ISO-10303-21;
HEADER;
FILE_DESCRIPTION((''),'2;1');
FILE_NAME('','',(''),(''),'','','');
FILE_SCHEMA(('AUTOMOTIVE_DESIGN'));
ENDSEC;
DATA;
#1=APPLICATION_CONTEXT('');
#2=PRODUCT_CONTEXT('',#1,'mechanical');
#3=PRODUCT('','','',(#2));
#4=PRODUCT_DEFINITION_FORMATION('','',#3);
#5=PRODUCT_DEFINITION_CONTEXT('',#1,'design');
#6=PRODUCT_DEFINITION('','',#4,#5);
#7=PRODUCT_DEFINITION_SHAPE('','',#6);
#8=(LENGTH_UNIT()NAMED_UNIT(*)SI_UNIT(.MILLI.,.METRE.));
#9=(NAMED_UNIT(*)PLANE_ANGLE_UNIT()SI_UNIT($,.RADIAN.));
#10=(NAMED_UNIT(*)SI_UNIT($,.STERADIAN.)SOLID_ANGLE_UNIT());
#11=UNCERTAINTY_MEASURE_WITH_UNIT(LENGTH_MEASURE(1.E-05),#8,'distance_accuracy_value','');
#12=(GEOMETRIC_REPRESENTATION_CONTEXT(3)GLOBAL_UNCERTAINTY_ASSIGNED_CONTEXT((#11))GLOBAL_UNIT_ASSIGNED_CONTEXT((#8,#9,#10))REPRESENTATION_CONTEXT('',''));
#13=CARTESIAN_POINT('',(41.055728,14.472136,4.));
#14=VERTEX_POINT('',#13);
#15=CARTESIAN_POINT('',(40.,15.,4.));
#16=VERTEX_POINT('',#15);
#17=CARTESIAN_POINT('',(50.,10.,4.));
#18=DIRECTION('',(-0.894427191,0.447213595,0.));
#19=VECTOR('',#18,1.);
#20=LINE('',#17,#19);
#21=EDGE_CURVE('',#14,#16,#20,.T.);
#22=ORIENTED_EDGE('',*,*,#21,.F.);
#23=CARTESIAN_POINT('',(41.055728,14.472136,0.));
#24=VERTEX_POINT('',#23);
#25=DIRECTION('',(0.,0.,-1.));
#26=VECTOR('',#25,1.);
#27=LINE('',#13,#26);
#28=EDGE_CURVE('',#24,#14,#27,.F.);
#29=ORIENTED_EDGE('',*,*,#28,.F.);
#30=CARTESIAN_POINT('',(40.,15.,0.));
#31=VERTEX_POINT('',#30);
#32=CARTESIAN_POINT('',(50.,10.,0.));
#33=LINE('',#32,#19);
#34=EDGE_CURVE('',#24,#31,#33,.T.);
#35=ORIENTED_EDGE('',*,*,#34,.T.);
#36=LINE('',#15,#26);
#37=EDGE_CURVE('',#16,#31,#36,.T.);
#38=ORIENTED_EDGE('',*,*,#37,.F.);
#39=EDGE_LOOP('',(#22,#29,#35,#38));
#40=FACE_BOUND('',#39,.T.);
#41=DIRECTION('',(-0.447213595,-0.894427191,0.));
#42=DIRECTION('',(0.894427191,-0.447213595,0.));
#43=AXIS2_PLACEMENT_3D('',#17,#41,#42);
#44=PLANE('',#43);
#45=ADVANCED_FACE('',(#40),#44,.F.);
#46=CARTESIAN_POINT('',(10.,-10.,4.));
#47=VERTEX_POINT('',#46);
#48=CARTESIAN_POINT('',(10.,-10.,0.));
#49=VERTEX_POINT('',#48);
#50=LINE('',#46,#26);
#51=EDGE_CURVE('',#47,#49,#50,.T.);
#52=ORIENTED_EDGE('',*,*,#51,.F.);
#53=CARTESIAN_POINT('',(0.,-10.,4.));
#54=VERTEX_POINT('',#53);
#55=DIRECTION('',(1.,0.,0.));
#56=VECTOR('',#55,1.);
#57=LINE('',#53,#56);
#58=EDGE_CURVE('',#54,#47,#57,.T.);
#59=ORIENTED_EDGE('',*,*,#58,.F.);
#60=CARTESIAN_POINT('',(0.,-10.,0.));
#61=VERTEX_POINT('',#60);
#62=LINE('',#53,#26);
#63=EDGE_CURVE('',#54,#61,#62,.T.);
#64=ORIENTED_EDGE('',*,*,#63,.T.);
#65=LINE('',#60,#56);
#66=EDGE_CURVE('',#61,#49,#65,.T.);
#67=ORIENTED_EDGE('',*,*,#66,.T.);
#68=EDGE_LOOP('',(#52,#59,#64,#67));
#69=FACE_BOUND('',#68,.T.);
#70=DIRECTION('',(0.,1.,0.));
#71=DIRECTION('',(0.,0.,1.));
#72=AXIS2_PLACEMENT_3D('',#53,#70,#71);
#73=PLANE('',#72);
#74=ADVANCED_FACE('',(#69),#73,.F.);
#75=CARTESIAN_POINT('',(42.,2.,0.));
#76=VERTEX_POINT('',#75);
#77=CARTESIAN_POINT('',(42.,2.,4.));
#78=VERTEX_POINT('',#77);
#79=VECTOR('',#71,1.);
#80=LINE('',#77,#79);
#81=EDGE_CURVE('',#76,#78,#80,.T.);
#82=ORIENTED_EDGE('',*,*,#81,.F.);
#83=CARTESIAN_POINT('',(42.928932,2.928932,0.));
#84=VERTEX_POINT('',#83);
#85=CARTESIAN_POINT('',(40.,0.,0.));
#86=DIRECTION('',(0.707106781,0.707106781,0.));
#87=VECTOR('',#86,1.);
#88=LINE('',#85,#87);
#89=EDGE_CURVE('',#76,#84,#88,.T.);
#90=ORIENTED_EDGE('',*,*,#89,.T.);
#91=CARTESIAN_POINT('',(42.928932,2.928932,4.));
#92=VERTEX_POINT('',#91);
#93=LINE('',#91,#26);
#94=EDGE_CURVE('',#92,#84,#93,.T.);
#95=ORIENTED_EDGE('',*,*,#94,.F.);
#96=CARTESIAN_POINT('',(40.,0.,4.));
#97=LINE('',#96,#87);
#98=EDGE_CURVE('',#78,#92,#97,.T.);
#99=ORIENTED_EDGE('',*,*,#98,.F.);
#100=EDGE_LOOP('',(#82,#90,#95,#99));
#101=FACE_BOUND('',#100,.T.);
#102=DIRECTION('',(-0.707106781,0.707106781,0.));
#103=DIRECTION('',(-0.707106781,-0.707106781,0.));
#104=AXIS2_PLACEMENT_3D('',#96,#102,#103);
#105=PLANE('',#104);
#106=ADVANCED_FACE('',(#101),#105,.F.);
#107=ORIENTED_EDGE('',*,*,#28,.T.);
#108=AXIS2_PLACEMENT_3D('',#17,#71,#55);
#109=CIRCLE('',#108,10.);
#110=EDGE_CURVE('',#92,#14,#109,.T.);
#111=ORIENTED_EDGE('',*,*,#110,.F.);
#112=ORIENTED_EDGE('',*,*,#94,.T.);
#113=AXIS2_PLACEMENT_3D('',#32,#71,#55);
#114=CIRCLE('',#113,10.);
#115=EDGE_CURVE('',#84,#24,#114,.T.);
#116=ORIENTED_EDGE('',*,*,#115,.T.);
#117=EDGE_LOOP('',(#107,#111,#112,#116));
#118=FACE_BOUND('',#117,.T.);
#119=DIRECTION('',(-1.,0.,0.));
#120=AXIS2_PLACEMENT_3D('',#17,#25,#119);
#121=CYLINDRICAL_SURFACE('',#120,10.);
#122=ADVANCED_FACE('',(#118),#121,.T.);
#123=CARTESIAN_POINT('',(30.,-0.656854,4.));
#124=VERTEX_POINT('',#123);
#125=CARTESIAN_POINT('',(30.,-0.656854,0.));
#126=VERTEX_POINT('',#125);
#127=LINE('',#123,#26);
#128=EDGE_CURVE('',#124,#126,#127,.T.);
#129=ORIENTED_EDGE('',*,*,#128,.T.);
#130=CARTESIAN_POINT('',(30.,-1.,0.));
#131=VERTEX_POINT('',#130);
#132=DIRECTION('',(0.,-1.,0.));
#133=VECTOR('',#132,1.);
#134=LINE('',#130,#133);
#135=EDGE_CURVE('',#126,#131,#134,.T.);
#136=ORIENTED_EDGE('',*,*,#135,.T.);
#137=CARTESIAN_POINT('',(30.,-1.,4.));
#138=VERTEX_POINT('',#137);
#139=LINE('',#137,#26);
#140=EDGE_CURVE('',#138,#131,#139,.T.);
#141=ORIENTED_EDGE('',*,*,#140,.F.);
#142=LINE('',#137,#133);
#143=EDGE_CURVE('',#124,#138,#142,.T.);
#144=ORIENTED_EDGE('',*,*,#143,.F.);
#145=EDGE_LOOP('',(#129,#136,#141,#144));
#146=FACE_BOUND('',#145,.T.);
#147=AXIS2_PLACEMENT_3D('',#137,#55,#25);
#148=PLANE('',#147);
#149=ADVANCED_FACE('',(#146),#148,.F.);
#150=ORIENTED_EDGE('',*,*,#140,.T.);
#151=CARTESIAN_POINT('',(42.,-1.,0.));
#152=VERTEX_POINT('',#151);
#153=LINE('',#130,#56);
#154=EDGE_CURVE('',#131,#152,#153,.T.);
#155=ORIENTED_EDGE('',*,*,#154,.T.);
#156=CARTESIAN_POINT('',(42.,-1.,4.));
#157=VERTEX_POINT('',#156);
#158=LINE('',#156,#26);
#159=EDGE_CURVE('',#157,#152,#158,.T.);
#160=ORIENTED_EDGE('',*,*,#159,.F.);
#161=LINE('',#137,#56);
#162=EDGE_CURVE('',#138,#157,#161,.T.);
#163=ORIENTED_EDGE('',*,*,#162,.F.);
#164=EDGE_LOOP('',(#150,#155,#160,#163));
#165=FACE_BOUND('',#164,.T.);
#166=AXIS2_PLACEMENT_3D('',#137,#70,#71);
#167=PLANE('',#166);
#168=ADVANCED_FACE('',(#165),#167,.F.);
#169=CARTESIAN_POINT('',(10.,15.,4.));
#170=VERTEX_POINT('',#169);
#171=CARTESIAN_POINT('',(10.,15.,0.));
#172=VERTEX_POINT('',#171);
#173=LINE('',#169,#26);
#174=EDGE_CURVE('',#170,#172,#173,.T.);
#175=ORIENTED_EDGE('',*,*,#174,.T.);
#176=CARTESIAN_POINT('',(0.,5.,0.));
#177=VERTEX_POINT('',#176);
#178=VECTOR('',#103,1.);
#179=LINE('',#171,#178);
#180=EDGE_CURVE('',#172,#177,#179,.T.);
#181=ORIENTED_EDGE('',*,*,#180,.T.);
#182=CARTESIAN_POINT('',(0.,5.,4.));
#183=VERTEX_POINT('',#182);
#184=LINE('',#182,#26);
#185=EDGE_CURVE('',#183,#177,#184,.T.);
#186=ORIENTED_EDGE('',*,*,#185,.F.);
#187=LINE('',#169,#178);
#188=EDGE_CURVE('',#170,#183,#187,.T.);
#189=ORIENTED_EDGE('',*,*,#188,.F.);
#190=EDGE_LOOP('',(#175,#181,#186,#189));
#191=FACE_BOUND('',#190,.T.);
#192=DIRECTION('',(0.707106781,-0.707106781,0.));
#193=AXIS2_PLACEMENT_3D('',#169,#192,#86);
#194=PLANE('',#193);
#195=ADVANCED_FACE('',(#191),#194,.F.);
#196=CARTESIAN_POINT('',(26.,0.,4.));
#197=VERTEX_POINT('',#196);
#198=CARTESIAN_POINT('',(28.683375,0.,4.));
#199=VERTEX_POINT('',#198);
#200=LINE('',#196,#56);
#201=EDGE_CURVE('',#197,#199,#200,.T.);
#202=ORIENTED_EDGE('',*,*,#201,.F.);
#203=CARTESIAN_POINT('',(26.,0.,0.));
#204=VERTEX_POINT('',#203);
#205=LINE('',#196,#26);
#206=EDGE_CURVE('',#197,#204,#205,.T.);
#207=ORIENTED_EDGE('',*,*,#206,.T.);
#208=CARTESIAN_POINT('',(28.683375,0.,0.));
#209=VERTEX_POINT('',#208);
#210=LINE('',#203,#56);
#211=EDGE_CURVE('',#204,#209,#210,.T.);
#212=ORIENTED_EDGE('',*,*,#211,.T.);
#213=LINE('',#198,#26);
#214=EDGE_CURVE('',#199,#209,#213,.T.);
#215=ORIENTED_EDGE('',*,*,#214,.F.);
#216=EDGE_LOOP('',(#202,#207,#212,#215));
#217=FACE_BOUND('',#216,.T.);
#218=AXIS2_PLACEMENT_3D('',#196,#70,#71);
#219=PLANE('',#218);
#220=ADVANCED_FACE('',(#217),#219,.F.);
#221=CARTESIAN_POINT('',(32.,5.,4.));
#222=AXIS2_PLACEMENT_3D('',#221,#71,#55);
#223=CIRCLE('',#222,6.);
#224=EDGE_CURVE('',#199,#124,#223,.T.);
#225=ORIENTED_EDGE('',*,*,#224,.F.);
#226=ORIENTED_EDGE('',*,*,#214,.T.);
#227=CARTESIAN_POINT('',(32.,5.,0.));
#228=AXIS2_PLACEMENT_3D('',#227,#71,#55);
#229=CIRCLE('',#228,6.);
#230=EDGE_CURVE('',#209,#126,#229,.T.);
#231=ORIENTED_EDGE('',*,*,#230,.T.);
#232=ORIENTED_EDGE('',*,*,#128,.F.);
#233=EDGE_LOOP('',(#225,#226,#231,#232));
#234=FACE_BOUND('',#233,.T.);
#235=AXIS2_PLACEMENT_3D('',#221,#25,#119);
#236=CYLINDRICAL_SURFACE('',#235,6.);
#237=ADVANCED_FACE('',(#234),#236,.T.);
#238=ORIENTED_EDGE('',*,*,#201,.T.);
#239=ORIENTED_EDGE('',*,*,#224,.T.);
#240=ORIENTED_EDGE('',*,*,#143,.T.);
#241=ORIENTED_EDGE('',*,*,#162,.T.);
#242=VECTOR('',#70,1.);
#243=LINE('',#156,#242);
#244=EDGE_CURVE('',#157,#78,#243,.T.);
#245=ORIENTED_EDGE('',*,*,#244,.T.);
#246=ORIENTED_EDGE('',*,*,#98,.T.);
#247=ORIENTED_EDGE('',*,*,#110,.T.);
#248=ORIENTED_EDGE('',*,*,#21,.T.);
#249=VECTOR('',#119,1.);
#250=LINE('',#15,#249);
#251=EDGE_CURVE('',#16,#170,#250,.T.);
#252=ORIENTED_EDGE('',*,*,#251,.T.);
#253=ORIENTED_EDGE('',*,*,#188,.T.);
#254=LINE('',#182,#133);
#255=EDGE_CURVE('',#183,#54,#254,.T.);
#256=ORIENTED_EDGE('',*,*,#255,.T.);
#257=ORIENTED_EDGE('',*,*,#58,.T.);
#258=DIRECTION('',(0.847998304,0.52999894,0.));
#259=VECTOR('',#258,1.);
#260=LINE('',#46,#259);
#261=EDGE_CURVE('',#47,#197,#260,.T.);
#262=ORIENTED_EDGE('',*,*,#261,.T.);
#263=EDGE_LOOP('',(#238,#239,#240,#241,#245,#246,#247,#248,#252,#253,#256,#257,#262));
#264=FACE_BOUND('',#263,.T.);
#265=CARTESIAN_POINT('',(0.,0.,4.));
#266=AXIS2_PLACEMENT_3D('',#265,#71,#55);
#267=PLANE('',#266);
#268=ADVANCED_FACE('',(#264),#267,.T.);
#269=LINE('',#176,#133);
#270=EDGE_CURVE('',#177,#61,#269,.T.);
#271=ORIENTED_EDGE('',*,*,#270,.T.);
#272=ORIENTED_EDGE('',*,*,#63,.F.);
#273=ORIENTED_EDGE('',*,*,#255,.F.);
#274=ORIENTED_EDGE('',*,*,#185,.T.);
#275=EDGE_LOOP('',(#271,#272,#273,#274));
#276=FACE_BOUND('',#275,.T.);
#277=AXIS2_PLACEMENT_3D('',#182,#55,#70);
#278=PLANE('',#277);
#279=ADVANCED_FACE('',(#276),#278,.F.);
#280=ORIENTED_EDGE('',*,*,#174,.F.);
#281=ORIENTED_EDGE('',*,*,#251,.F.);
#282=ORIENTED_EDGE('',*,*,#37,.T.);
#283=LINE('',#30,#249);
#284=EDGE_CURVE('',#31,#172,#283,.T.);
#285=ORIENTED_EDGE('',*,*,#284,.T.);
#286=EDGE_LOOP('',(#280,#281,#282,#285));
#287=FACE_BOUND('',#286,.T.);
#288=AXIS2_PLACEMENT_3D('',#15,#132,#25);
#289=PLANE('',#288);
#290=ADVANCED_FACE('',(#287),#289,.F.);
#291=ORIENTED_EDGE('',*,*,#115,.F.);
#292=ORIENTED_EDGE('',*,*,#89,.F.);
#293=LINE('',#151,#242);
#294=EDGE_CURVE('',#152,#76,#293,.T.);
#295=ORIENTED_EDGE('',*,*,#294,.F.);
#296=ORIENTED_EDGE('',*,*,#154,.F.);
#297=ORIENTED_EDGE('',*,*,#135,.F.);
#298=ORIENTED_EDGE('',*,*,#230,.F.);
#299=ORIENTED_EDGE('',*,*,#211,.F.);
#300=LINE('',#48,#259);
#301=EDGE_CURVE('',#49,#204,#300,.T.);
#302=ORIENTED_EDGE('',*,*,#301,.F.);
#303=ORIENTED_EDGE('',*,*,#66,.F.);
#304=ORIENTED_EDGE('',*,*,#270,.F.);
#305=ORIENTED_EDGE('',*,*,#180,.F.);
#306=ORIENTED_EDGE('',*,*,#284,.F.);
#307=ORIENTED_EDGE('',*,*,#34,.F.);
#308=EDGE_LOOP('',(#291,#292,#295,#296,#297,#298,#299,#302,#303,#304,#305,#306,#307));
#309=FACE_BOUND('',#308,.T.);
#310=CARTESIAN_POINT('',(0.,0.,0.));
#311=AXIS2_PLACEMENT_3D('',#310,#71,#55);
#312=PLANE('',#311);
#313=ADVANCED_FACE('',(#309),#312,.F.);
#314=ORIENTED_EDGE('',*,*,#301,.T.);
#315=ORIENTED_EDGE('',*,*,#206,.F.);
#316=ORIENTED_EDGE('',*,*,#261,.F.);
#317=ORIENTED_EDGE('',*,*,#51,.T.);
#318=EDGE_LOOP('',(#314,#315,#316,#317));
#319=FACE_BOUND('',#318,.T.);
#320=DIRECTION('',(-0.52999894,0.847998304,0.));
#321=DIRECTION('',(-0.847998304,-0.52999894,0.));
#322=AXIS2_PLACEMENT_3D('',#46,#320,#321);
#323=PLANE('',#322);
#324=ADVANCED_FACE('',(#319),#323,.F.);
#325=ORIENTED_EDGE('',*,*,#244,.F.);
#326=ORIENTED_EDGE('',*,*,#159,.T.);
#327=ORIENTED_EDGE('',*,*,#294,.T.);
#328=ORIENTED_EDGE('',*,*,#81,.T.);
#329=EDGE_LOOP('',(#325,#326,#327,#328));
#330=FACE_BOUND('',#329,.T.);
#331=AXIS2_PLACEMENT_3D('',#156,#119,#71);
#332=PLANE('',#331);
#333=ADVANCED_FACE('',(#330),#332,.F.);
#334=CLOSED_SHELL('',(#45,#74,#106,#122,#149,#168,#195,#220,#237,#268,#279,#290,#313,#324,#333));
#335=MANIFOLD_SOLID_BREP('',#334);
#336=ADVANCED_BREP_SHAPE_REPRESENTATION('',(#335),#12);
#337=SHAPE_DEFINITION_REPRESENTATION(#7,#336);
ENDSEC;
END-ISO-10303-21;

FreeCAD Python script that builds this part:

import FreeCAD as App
import Part
import Sketcher
Q = App.Units.Quantity

doc = App.newDocument("Part")
params = doc.addObject("Spreadsheet::Sheet", "Params")
for row, (alias, value) in enumerate([
    ("sketch1_width", "10 mm"),
    ("sketch1_width2", "14 mm"),
    ("sketch1_width3", "30 mm"),
    ("sketch1_height", "15 mm"),
    ("pad1_length", "4 mm"),
    ("sketch2_diameter", "20 mm"),
    ("pad2_length", "4 mm"),
    ("sketch3_diameter", "12 mm"),
    ("pad3_length", "4 mm"),
    ("sketch4_width", "12 mm"),
    ("pad4_length", "4 mm"),
], start=1):
    params.set(f"A{row}", alias)
    params.set(f"B{row}", "=" + value)
    params.setAlias(f"B{row}", alias)

body = doc.addObject("PartDesign::Body", "Body")

# Sketch on XY plane
sketch1 = doc.addObject("Sketcher::SketchObject", "Sketch")
body.addObject(sketch1)
sketch1.AttachmentSupport = (doc.XY_Plane, [""])
sketch1.MapMode = "FlatFace"
sketch1.addGeometry(Part.LineSegment(App.Vector(0, -10, 0), App.Vector(10, -10, 0)), False)
sketch1.addGeometry(Part.LineSegment(App.Vector(10, -10, 0), App.Vector(26, 0, 0)), False)
sketch1.addGeometry(Part.LineSegment(App.Vector(26, 0, 0), App.Vector(40, 0, 0)), False)
sketch1.addGeometry(Part.LineSegment(App.Vector(40, 0, 0), App.Vector(50, 10, 0)), False)
sketch1.addGeometry(Part.LineSegment(App.Vector(50, 10, 0), App.Vector(40, 15, 0)), False)
sketch1.addGeometry(Part.LineSegment(App.Vector(40, 15, 0), App.Vector(10, 15, 0)), False)
sketch1.addGeometry(Part.LineSegment(App.Vector(10, 15, 0), App.Vector(0, 5, 0)), False)
sketch1.addGeometry(Part.LineSegment(App.Vector(0, 5, 0), App.Vector(0, -10, 0)), False)
sketch1.addConstraint(Sketcher.Constraint("Coincident", 0, 2, 1, 1))
sketch1.addConstraint(Sketcher.Constraint("Coincident", 1, 2, 2, 1))
sketch1.addConstraint(Sketcher.Constraint("Coincident", 2, 2, 3, 1))
sketch1.addConstraint(Sketcher.Constraint("Coincident", 3, 2, 4, 1))
sketch1.addConstraint(Sketcher.Constraint("Coincident", 4, 2, 5, 1))
sketch1.addConstraint(Sketcher.Constraint("Coincident", 5, 2, 6, 1))
sketch1.addConstraint(Sketcher.Constraint("Coincident", 6, 2, 7, 1))
sketch1.addConstraint(Sketcher.Constraint("Coincident", 7, 2, 0, 1))
sketch1.addConstraint(Sketcher.Constraint("Horizontal", 0))
sketch1.addConstraint(Sketcher.Constraint("Horizontal", 2))
sketch1.addConstraint(Sketcher.Constraint("Horizontal", 5))
sketch1.addConstraint(Sketcher.Constraint("Vertical", 7))
sketch1.addConstraint(Sketcher.Constraint("PointOnObject", 1, 2, -1))
sketch1.addConstraint(Sketcher.Constraint("PointOnObject", 6, 2, -2))
sketch1.addConstraint(Sketcher.Constraint("Parallel", 3, 6))
sketch1.addConstraint(Sketcher.Constraint("Vertical", 2, 2, 4, 2))
sketch1.addConstraint(Sketcher.Constraint("Vertical", 0, 2, 5, 2))
sketch1.addConstraint(Sketcher.Constraint("Equal", 3, 6))
sketch1.addConstraint(Sketcher.Constraint("DistanceX", 0, 1, 0, 2, 10.0))
sketch1.addConstraint(Sketcher.Constraint("DistanceX", 2, 1, 2, 2, 14.0))
sketch1.addConstraint(Sketcher.Constraint("DistanceX", 5, 2, 5, 1, 30.0))
sketch1.addConstraint(Sketcher.Constraint("DistanceY", 7, 2, 7, 1, 15.0))
sketch1.addConstraint(Sketcher.Constraint("Angle", 3, Q("45 deg")))
sketch1.addConstraint(Sketcher.Constraint("DistanceY", 0, 2, -1, 1, 10.0))
sketch1.setExpression("Constraints[18]", "Params.sketch1_width")
sketch1.setExpression("Constraints[19]", "Params.sketch1_width2")
sketch1.setExpression("Constraints[20]", "Params.sketch1_width3")
sketch1.setExpression("Constraints[21]", "Params.sketch1_height")
pad1 = doc.addObject("PartDesign::Pad", "Pad")
body.addObject(pad1)
pad1.Profile = sketch1
pad1.setExpression("Length", "Params.pad1_length")

# Sketch on XY plane
sketch2 = doc.addObject("Sketcher::SketchObject", "Sketch001")
body.addObject(sketch2)
sketch2.AttachmentSupport = (doc.XY_Plane, [""])
sketch2.MapMode = "FlatFace"
sketch2.addGeometry(Part.Circle(App.Vector(50, 10, 0), App.Vector(0, 0, 1), 10), False)
sketch2.addConstraint(Sketcher.Constraint("Diameter", 0, 20.0))
sketch2.addConstraint(Sketcher.Constraint("DistanceX", -1, 1, 0, 3, 50.0))
sketch2.addConstraint(Sketcher.Constraint("DistanceY", -1, 1, 0, 3, 10.0))
sketch2.setExpression("Constraints[0]", "Params.sketch2_diameter")
pad2 = doc.addObject("PartDesign::Pad", "Pad001")
body.addObject(pad2)
pad2.Profile = sketch2
pad2.setExpression("Length", "Params.pad2_length")

# Sketch on XY plane
sketch3 = doc.addObject("Sketcher::SketchObject", "Sketch002")
body.addObject(sketch3)
sketch3.AttachmentSupport = (doc.XY_Plane, [""])
sketch3.MapMode = "FlatFace"
sketch3.addGeometry(Part.Circle(App.Vector(32, 5, 0), App.Vector(0, 0, 1), 6), False)
sketch3.addConstraint(Sketcher.Constraint("Diameter", 0, 12.0))
sketch3.addConstraint(Sketcher.Constraint("DistanceX", -1, 1, 0, 3, 32.0))
sketch3.addConstraint(Sketcher.Constraint("DistanceY", -1, 1, 0, 3, 5.0))
sketch3.setExpression("Constraints[0]", "Params.sketch3_diameter")
pad3 = doc.addObject("PartDesign::Pad", "Pad002")
body.addObject(pad3)
pad3.Profile = sketch3
pad3.setExpression("Length", "Params.pad3_length")

# Sketch on XY plane
sketch4 = doc.addObject("Sketcher::SketchObject", "Sketch003")
body.addObject(sketch4)
sketch4.AttachmentSupport = (doc.XY_Plane, [""])
sketch4.MapMode = "FlatFace"
sketch4.addGeometry(Part.LineSegment(App.Vector(30, 11, 0), App.Vector(30, -1, 0)), False)
sketch4.addGeometry(Part.LineSegment(App.Vector(30, -1, 0), App.Vector(42, -1, 0)), False)
sketch4.addGeometry(Part.LineSegment(App.Vector(42, -1, 0), App.Vector(42, 11, 0)), False)
sketch4.addGeometry(Part.LineSegment(App.Vector(42, 11, 0), App.Vector(30, 11, 0)), False)
sketch4.addConstraint(Sketcher.Constraint("Coincident", 0, 2, 1, 1))
sketch4.addConstraint(Sketcher.Constraint("Coincident", 1, 2, 2, 1))
sketch4.addConstraint(Sketcher.Constraint("Coincident", 2, 2, 3, 1))
sketch4.addConstraint(Sketcher.Constraint("Coincident", 3, 2, 0, 1))
sketch4.addConstraint(Sketcher.Constraint("Vertical", 0))
sketch4.addConstraint(Sketcher.Constraint("Horizontal", 1))
sketch4.addConstraint(Sketcher.Constraint("Vertical", 2))
sketch4.addConstraint(Sketcher.Constraint("Horizontal", 3))
sketch4.addConstraint(Sketcher.Constraint("Equal", 3, 0))
sketch4.addConstraint(Sketcher.Constraint("DistanceX", 1, 1, 1, 2, 12.0))
sketch4.addConstraint(Sketcher.Constraint("DistanceX", -1, 1, 0, 2, 30.0))
sketch4.addConstraint(Sketcher.Constraint("DistanceY", 0, 2, -1, 1, 1.0))
sketch4.setExpression("Constraints[9]", "Params.sketch4_width")
pad4 = doc.addObject("PartDesign::Pad", "Pad003")
body.addObject(pad4)
pad4.Profile = sketch4
pad4.setExpression("Length", "Params.pad4_length")

doc.recompute()
